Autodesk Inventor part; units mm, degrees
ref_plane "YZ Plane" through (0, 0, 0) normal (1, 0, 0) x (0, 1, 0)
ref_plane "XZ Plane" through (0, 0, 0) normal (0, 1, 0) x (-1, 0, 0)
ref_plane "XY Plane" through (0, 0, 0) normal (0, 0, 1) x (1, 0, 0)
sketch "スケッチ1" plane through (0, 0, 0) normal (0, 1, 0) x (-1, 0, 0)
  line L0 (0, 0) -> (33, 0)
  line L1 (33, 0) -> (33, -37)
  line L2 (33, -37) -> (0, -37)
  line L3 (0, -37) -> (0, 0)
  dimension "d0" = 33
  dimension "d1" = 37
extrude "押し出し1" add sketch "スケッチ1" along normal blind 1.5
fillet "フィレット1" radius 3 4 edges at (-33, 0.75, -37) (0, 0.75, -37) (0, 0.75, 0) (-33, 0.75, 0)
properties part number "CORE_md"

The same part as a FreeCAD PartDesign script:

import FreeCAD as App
import Part
import Sketcher
Q = App.Units.Quantity


def edges_at(feature, points):
    """Names of the edges that pass closest to the given points."""
    edges = feature.Shape.Edges
    near = lambda p: min(range(len(edges)), key=lambda i: edges[i].distToShape(Part.Vertex(*p))[0])
    return sorted({f"Edge{near(p) + 1}" for p in points})

doc = App.newDocument("Part")
params = doc.addObject("Spreadsheet::Sheet", "Params")
for row, (alias, value) in enumerate([
    ("sketch1_width", "33 mm"),
    ("sketch1_height", "37 mm"),
    ("pad1_length", "1.5 mm"),
    ("fillet_radius", "3 mm"),
], start=1):
    params.set(f"A{row}", alias)
    params.set(f"B{row}", "=" + value)
    params.setAlias(f"B{row}", alias)

body = doc.addObject("PartDesign::Body", "Body")

sketch1 = body.newObject("Sketcher::SketchObject", "Sketch")
sketch1.AttachmentSupport = (doc.getObject("XZ_Plane"), [""])
sketch1.MapMode = "FlatFace"
sketch1.addGeometry([
    Part.LineSegment(App.Vector(-33, 0, 0), App.Vector(0, 0, 0)),
    Part.LineSegment(App.Vector(0, 0, 0), App.Vector(0, -37, 0)),
    Part.LineSegment(App.Vector(0, -37, 0), App.Vector(-33, -37, 0)),
    Part.LineSegment(App.Vector(-33, -37, 0), App.Vector(-33, 0, 0)),
], False)
sketch1.addConstraint([
    Sketcher.Constraint("Coincident", 0, 2, 1, 1),
    Sketcher.Constraint("Coincident", 1, 2, 2, 1),
    Sketcher.Constraint("Coincident", 2, 2, 3, 1),
    Sketcher.Constraint("Coincident", 3, 2, 0, 1),
    Sketcher.Constraint("Horizontal", 0),
    Sketcher.Constraint("Vertical", 1),
    Sketcher.Constraint("Horizontal", 2),
    Sketcher.Constraint("Vertical", 3),
    Sketcher.Constraint("Coincident", 0, 2, -1, 1),
    Sketcher.Constraint("DistanceX", 0, 1, 0, 2, Q("33 mm")),
    Sketcher.Constraint("DistanceY", 1, 2, 1, 1, Q("37 mm")),
])
sketch1.setExpression("Constraints[9]", "Params.sketch1_width")
sketch1.setExpression("Constraints[10]", "Params.sketch1_height")
pad1 = body.newObject("PartDesign::Pad", "Pad")
pad1.Profile = sketch1
pad1.setExpression("Length", "Params.pad1_length")
pad1.Reversed = True
doc.recompute()

fillet = body.newObject("PartDesign::Fillet", "Fillet")
fillet.Base = (pad1, edges_at(pad1, [
    (-33, 0.75, -37),
    (0, 0.75, -37),
    (0, 0.75, 0),
    (-33, 0.75, 0),
]))
fillet.setExpression("Radius", "Params.fillet_radius")

doc.recompute()
